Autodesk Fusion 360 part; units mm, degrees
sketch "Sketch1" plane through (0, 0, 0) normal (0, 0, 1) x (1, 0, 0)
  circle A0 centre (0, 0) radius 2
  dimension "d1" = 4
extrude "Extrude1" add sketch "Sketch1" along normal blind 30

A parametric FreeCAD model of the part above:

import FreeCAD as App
import Part
import Sketcher

V = App.Vector
Q = App.Units.Quantity

doc = App.newDocument("Part")
body = doc.addObject("PartDesign::Body", "Body")

# Sketch on XY plane
sketch1 = doc.addObject("Sketcher::SketchObject", "Sketch")
body.addObject(sketch1)
sketch1.AttachmentSupport = (doc.XY_Plane, [""])
sketch1.MapMode = "FlatFace"
sketch1.addGeometry(Part.Circle(V(0, 0, 0), V(0, 0, 1), 2), False)
sketch1.addConstraint([
    Sketcher.Constraint("Coincident", 0, 3, -1, 1),
    Sketcher.Constraint("Diameter", 0, Q("4 mm")),
])
pad1 = doc.addObject("PartDesign::Pad", "Pad")
body.addObject(pad1)
pad1.Profile = sketch1
pad1.Length = 30

doc.recompute()
